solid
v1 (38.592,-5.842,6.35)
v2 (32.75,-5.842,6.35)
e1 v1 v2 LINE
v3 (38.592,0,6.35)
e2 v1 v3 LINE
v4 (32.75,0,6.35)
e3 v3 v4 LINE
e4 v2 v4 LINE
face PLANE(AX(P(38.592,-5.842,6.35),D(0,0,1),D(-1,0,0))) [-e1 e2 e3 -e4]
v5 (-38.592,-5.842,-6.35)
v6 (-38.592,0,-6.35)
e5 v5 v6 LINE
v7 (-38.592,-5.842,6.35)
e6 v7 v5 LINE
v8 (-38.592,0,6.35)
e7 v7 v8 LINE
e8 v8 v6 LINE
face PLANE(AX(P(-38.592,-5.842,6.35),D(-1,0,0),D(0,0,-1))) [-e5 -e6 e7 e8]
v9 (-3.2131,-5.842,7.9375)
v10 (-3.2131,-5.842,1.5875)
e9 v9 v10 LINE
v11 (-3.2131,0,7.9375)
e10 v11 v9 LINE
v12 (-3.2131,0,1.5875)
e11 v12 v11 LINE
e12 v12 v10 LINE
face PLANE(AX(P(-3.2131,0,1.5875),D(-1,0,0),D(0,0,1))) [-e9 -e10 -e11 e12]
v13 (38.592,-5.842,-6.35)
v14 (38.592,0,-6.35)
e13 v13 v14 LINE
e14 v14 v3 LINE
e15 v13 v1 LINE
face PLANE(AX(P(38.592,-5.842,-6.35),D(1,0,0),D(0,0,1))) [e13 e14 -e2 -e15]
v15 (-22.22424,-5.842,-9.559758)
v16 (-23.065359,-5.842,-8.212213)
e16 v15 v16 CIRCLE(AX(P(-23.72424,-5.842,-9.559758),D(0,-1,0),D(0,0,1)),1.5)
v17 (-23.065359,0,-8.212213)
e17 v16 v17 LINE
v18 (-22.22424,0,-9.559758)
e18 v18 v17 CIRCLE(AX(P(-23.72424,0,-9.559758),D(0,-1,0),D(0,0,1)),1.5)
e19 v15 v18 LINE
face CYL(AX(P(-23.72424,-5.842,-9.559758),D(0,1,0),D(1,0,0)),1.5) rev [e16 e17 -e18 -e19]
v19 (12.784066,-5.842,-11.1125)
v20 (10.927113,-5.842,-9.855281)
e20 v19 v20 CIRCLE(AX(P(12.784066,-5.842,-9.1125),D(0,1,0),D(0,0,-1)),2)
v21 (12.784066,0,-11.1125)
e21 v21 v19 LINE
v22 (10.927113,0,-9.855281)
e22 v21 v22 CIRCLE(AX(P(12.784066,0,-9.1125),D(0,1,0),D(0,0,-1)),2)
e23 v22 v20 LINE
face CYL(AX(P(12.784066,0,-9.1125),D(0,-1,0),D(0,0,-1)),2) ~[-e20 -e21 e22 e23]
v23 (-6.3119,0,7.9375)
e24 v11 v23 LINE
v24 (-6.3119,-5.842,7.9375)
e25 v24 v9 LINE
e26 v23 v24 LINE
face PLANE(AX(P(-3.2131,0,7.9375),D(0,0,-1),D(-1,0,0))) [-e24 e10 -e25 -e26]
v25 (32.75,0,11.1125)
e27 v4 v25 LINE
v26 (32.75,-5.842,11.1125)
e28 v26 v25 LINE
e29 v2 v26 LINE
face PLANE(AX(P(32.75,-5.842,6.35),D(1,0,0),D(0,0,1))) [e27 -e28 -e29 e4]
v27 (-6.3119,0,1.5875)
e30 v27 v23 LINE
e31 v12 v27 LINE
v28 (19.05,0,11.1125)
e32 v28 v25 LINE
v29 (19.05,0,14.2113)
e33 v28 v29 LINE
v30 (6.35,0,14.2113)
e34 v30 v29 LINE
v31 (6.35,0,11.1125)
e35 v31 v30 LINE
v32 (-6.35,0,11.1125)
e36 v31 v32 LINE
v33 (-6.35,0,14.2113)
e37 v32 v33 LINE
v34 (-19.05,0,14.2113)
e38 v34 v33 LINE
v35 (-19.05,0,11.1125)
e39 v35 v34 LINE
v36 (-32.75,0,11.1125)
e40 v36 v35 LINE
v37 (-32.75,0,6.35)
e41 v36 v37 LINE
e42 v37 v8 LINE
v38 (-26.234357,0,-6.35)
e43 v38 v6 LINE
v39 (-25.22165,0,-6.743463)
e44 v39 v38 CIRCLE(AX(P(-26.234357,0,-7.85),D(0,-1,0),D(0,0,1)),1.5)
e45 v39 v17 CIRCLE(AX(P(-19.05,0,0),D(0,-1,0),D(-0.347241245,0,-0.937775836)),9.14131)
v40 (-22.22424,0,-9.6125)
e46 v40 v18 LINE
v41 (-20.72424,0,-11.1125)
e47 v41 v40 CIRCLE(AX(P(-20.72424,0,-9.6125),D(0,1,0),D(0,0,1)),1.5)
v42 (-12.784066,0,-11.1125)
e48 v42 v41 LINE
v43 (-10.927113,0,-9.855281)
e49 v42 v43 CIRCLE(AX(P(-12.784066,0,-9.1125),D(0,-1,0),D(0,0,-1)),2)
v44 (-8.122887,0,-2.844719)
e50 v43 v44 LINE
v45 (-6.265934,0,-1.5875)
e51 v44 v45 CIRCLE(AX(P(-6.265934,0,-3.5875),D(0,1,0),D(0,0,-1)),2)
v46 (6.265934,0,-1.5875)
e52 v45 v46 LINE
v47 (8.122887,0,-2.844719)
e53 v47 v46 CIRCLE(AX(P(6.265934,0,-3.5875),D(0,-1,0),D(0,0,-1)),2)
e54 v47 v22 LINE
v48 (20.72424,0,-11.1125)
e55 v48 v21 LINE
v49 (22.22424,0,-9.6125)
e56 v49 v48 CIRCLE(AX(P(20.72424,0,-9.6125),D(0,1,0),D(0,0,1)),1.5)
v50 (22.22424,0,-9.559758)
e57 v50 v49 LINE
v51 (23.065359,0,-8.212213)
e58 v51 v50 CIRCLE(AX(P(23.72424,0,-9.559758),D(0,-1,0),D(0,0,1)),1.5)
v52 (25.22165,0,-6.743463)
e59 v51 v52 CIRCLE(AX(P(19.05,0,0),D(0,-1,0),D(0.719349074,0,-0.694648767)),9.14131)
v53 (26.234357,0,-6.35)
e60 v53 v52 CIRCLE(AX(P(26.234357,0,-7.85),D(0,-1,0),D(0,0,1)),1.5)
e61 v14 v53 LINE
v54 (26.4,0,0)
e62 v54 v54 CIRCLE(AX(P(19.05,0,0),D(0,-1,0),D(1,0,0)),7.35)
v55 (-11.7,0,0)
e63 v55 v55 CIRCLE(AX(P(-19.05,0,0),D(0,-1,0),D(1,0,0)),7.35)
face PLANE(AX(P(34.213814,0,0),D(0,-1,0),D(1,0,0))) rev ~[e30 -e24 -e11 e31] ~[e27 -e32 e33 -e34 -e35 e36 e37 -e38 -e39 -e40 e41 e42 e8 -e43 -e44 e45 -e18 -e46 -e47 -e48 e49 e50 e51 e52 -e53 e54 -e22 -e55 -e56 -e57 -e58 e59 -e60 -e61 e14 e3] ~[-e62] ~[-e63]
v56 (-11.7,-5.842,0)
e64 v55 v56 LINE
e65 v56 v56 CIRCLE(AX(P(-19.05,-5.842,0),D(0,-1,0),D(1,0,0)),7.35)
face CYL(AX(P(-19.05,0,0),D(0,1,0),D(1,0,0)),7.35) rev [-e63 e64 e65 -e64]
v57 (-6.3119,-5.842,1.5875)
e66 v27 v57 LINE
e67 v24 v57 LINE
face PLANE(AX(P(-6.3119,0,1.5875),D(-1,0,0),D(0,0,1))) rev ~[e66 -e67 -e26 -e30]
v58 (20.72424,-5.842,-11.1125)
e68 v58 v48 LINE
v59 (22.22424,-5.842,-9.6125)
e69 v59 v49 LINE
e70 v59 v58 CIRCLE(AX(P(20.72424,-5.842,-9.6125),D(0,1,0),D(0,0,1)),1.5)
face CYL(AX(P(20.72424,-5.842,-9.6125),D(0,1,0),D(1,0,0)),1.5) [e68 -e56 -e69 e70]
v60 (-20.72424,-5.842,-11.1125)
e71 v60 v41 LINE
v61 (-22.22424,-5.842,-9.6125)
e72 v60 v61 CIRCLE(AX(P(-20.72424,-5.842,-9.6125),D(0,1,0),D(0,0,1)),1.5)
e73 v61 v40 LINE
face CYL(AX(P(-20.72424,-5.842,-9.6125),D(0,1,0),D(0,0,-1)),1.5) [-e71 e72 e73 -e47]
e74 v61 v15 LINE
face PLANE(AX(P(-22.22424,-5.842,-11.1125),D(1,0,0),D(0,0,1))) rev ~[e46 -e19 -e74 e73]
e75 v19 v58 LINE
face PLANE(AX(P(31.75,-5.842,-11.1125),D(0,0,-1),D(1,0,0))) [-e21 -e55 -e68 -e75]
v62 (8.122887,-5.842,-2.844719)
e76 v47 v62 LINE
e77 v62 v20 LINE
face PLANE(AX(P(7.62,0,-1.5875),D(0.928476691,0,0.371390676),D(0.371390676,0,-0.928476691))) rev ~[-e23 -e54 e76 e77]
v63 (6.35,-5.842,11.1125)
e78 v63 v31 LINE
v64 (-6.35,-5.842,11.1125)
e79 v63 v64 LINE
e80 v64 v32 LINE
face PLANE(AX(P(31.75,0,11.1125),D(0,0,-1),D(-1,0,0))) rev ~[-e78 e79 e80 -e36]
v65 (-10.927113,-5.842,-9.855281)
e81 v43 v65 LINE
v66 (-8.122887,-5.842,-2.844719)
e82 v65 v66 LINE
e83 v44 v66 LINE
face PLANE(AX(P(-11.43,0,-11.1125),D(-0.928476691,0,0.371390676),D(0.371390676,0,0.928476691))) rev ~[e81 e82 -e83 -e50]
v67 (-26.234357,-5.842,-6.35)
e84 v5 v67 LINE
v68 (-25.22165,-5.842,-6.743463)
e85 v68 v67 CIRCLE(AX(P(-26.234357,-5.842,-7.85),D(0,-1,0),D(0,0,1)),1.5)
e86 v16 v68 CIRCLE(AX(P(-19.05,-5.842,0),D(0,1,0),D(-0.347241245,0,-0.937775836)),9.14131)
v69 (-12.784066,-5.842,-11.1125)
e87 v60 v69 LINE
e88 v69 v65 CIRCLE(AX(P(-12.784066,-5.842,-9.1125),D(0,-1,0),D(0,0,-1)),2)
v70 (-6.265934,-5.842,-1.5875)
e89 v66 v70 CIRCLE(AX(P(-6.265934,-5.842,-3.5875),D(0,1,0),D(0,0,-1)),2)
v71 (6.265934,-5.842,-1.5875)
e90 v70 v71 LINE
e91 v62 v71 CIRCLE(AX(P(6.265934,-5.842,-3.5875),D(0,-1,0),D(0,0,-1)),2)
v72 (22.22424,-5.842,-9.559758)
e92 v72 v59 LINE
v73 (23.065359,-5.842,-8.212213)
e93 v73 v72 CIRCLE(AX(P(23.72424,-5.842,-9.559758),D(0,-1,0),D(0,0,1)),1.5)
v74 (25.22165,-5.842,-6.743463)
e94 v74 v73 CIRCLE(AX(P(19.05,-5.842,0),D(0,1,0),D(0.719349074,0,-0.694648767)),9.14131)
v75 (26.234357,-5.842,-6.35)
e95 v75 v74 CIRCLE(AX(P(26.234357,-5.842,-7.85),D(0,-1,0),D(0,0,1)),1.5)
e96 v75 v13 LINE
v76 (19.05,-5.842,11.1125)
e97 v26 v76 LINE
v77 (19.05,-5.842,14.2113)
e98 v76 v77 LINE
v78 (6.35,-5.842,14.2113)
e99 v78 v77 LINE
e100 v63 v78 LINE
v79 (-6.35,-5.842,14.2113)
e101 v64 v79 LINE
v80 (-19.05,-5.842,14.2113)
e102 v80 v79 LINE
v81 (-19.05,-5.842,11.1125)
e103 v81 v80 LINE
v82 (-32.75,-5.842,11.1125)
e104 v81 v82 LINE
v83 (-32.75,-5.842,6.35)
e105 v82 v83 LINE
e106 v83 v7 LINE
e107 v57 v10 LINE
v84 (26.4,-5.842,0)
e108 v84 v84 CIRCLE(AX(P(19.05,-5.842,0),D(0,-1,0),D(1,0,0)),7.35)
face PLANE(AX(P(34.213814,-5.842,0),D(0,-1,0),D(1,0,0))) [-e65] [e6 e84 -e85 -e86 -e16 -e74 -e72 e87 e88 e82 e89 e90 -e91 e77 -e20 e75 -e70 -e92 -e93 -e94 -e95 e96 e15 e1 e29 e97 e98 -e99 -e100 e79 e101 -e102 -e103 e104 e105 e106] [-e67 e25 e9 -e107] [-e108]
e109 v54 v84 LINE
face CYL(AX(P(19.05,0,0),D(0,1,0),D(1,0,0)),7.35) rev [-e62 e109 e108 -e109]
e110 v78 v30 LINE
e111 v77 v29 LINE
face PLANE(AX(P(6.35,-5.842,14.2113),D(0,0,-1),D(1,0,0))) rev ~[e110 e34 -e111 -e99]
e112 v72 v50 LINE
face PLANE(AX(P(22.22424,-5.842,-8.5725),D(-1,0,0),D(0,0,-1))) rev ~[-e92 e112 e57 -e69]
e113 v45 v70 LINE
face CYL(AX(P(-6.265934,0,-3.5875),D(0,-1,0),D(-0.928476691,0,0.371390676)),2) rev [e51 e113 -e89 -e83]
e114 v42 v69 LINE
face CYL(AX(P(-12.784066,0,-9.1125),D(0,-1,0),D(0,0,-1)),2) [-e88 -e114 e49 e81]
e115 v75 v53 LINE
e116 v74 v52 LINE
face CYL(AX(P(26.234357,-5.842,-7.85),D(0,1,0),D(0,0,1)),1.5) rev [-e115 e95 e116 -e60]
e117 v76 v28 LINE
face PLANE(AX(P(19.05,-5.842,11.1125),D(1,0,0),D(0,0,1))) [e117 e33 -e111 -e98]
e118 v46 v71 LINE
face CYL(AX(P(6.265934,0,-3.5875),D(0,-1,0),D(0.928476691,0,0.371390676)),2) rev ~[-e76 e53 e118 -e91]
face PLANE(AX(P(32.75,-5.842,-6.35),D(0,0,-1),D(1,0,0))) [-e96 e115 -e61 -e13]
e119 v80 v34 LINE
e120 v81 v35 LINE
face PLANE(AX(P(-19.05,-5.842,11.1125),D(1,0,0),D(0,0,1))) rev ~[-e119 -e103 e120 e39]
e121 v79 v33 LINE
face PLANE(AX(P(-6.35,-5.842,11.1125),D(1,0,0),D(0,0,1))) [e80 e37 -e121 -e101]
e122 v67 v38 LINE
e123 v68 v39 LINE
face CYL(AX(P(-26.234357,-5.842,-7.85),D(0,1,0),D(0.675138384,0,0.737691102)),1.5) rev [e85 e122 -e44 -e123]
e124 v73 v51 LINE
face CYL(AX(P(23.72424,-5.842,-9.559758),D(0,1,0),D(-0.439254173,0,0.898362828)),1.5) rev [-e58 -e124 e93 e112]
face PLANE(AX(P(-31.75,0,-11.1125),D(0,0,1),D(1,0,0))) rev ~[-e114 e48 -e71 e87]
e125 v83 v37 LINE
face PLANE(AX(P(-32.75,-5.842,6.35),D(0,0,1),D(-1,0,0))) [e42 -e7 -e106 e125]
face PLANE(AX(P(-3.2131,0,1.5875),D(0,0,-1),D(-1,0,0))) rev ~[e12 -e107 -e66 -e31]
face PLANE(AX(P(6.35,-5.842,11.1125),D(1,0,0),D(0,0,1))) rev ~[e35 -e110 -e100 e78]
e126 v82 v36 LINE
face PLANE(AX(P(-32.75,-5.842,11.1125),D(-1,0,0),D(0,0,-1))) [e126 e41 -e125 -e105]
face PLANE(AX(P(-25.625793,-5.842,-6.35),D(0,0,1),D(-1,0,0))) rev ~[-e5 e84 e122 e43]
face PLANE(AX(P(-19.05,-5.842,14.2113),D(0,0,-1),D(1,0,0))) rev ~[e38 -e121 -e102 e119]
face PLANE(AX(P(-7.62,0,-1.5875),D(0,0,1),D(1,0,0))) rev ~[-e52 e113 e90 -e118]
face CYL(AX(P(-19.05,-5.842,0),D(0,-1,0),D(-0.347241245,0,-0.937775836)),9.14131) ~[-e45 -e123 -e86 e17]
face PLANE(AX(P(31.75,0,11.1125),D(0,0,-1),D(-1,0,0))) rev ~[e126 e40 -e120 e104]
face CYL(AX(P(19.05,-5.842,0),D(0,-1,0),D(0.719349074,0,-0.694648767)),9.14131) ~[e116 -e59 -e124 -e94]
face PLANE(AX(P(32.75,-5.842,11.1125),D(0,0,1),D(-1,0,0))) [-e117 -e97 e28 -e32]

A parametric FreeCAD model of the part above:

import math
import FreeCAD as App
import Part
import Sketcher
from FreeCAD import Vector
Q = App.Units.Quantity


def edges_at(feature, points):
    """Names of the edges that pass closest to the given points."""
    edges = feature.Shape.Edges
    near = lambda p: min(range(len(edges)), key=lambda i: edges[i].distToShape(Part.Vertex(*p))[0])
    return sorted({f"Edge{near(p) + 1}" for p in points})


def add_polygon(sketch, points):
    """Adds a closed chain of lines whose ends are joined by coincident constraints."""
    first, n = sketch.GeometryCount, len(points)
    for a, b in zip(points, points[1:] + points[:1]):
        sketch.addGeometry(Part.LineSegment(App.Vector(*a, 0), App.Vector(*b, 0)), False)
    for i in range(n):
        sketch.addConstraint(Sketcher.Constraint("Coincident", first + i, 2, first + (i + 1) % n, 1))

doc = App.newDocument("Part")
params = doc.addObject("Spreadsheet::Sheet", "Params")
for row, (alias, value) in enumerate([
    ("sketch1_width", "2.5 in"),
    ("sketch1_width2", "0.8 in"),
    ("sketch1_width3", "0.6 in"),
    ("sketch1_height", "0.875 in"),
    ("pad1_length", "0.23 in"),
    ("fillet_radius", "2 mm"),
    ("sketch2_height", "0.25 in"),
    ("sketch2_width", "0.122 in"),
    ("pocket1_length", "1 in"),
    ("sketch3_width", "0.5 in"),
    ("sketch3_height", "0.122 in"),
    ("pad2_length", "0.23 in"),
    ("sketch4_height", "0.5 in"),
    ("sketch4_width", "0.23 in"),
    ("sketch4_height2", "0.1875 in"),
    ("sketch5_height", "0.1 in"),
    ("sketch5_height2", "0.1875 in"),
    ("pocket2_length", "1 in"),
    ("fillet2_radius", "1.5 mm"),
], start=1):
    params.set(f"A{row}", alias)
    params.set(f"B{row}", "=" + value)
    params.setAlias(f"B{row}", alias)

body = doc.addObject("PartDesign::Body", "Body")

# Sketch on XZ plane
sketch1 = body.newObject("Sketcher::SketchObject", "Sketch")
sketch1.AttachmentSupport = (doc.getObject("XZ_Plane"), [""])
sketch1.MapMode = "FlatFace"
add_polygon(sketch1, [(32, 11), (-32, 11), (-32, -11), (-11, -11), (-8, -2), (8, -2), (11, -11), (32, -11)])  # lines 0-7
sketch1.addGeometry(Part.Circle(Vector(-19, 0, 0), Vector(0, 0, 1), 7), False)  # 8
sketch1.addGeometry(Part.Circle(Vector(19, 0, 0), Vector(0, 0, 1), 7), False)  # 9
sketch1.addConstraint([
    Sketcher.Constraint("Horizontal", 0),
    Sketcher.Constraint("Vertical", 1),
    Sketcher.Constraint("Horizontal", 2),
    Sketcher.Constraint("Horizontal", 4),
    Sketcher.Constraint("Horizontal", 6),
    Sketcher.Constraint("Vertical", 7),
    Sketcher.Constraint("Equal", 8, 9),
    Sketcher.Constraint("Symmetric", 8, 3, 9, 3, -1, 1),
    Sketcher.Constraint("Symmetric", 0, 2, 6, 2, -1, 1),
    Sketcher.Constraint("Symmetric", 2, 2, 5, 2, -2),
    Sketcher.Constraint("PointOnObject", 8, 3, -1),
    Sketcher.Constraint("Equal", 3, 5),
    Sketcher.Constraint("DistanceX", 0, 2, 0, 1, Q("2.5 in")),
    Sketcher.Constraint("DistanceX", 2, 1, 2, 2, Q("0.8 in")),
    Sketcher.Constraint("DistanceX", 4, 1, 4, 2, Q("0.6 in")),
    Sketcher.Constraint("DistanceX", 0, 2, 9, 3, Q("2 in")),
    Sketcher.Constraint("DistanceY", 3, 2, 0, 2, Q("0.5 in")),
    Sketcher.Constraint("Diameter", 8, 14.7),
    Sketcher.Constraint("DistanceY", 1, 2, 1, 1, Q("0.875 in")),
])
sketch1.setExpression("Constraints[20]", "Params.sketch1_width")
sketch1.setExpression("Constraints[21]", "Params.sketch1_width2")
sketch1.setExpression("Constraints[22]", "Params.sketch1_width3")
sketch1.setExpression("Constraints[26]", "Params.sketch1_height")
pad1 = body.newObject("PartDesign::Pad", "Pad")
pad1.Profile = sketch1
pad1.setExpression("Length", "Params.pad1_length")
doc.recompute()

fillet = body.newObject("PartDesign::Fillet", "Fillet")
fillet.Base = (pad1, edges_at(pad1, [
    (-11.43, -2.921, -11.113),
    (-7.62, -2.921, -1.587),
    (7.62, -2.921, -1.587),
    (11.43, -2.921, -11.113),
]))
fillet.setExpression("Radius", "Params.fillet_radius")

# Sketch on XZ plane
sketch2 = body.newObject("Sketcher::SketchObject", "Sketch001")
sketch2.AttachmentSupport = (doc.getObject("XZ_Plane"), [""])
sketch2.MapMode = "FlatFace"
add_polygon(sketch2, [(-3.2, 7.9), (-3.2, 1.6), (-6.3, 1.6), (-6.3, 7.9)])  # lines 0-3
sketch2.addConstraint([
    Sketcher.Constraint("Vertical", 0),
    Sketcher.Constraint("Horizontal", 1),
    Sketcher.Constraint("Vertical", 2),
    Sketcher.Constraint("Horizontal", 3),
    Sketcher.Constraint("DistanceY", 0, 2, 0, 1, Q("0.25 in")),
    Sketcher.Constraint("DistanceX", 1, 2, 1, 1, Q("0.122 in")),
    Sketcher.Constraint("DistanceY", -1, 1, 0, 2, Q("0.0625 in")),
    Sketcher.Constraint("DistanceX", 0, 2, -1, 1, Q("0.1265 in")),
])
sketch2.setExpression("Constraints[8]", "Params.sketch2_height")
sketch2.setExpression("Constraints[9]", "Params.sketch2_width")
pocket1 = body.newObject("PartDesign::Pocket", "Pocket")
pocket1.Profile = sketch2
pocket1.setExpression("Length", "Params.pocket1_length")
pocket1.Reversed = True

# Sketch on XZ plane
sketch3 = body.newObject("Sketcher::SketchObject", "Sketch002")
sketch3.AttachmentSupport = (doc.getObject("XZ_Plane"), [""])
sketch3.MapMode = "FlatFace"
sketch3.AttachmentOffset = App.Placement(Vector(0, 0, 0.23 * 25.4), App.Rotation())
add_polygon(sketch3, [(-19.1, 14.2), (-19.1, 11.1), (-6.3, 11.1), (-6.3, 14.2)])  # lines 0-3
add_polygon(sketch3, [(6.3, 14.2), (6.3, 11.1), (19.1, 11.1), (19.1, 14.2)])  # lines 4-7
sketch3.addConstraint([
    Sketcher.Constraint("Vertical", 0),
    Sketcher.Constraint("Horizontal", 1),
    Sketcher.Constraint("Vertical", 2),
    Sketcher.Constraint("Horizontal", 3),
    Sketcher.Constraint("Vertical", 4),
    Sketcher.Constraint("Horizontal", 5),
    Sketcher.Constraint("Vertical", 6),
    Sketcher.Constraint("Horizontal", 7),
    Sketcher.Constraint("Symmetric", 1, 2, 4, 2, -2),
    Sketcher.Constraint("Symmetric", 3, 2, 6, 2, -2),
    Sketcher.Constraint("DistanceX", 1, 1, 1, 2, Q("0.5 in")),
    Sketcher.Constraint("DistanceX", 0, 2, 4, 2, Q("1 in")),
    Sketcher.Constraint("DistanceY", 0, 2, 0, 1, Q("0.122 in")),
    Sketcher.Constraint("DistanceY", -1, 1, 0, 2, Q("0.4375 in")),
])
sketch3.setExpression("Constraints[18]", "Params.sketch3_width")
sketch3.setExpression("Constraints[20]", "Params.sketch3_height")
pad2 = body.newObject("PartDesign::Pad", "Pad001")
pad2.Profile = sketch3
pad2.setExpression("Length", "Params.pad2_length")
pad2.Reversed = True

# Sketch on XZ plane
sketch4 = body.newObject("Sketcher::SketchObject", "Sketch003")
sketch4.AttachmentSupport = (doc.getObject("XZ_Plane"), [""])
sketch4.MapMode = "FlatFace"
sketch4.AttachmentOffset = App.Placement(Vector(0, 0, 0.23 * 25.4), App.Rotation())
add_polygon(sketch4, [(38.6, 6.3), (32.8, 6.3), (32.8, 11.1), (31.8, 11.1), (31.8, -11.1), (32.8, -11.1), (32.8, -6.3), (38.6, -6.3)])  # lines 0-7
add_polygon(sketch4, [(-31.8, 11.1), (-32.8, 11.1), (-32.8, 6.3), (-38.6, 6.3), (-38.6, -6.3), (-32.8, -6.3), (-32.8, -11.1), (-31.8, -11.1)])  # lines 8-15
sketch4.addConstraint([
    Sketcher.Constraint("Horizontal", 0),
    Sketcher.Constraint("Vertical", 1),
    Sketcher.Constraint("Horizontal", 2),
    Sketcher.Constraint("Vertical", 3),
    Sketcher.Constraint("Horizontal", 4),
    Sketcher.Constraint("Vertical", 5),
    Sketcher.Constraint("Horizontal", 6),
    Sketcher.Constraint("Vertical", 7),
    Sketcher.Constraint("Horizontal", 8),
    Sketcher.Constraint("Vertical", 9),
    Sketcher.Constraint("Horizontal", 10),
    Sketcher.Constraint("Vertical", 11),
    Sketcher.Constraint("Horizontal", 12),
    Sketcher.Constraint("Vertical", 13),
    Sketcher.Constraint("Horizontal", 14),
    Sketcher.Constraint("Vertical", 15),
    Sketcher.Constraint("Symmetric", 4, 2, 8, 2, -1, 1),
    Sketcher.Constraint("Symmetric", 6, 2, 10, 2, -1, 1),
    Sketcher.Constraint("Symmetric", 0, 2, 12, 2, -1, 1),
    Sketcher.Constraint("Symmetric", 2, 2, 14, 2, -1, 1),
    Sketcher.Constraint("Symmetric", 1, 2, 8, 2, -2),
    Sketcher.Constraint("Horizontal", 7, 2, 9, 2),
    Sketcher.Constraint("DistanceY", 7, 1, 7, 2, Q("0.5 in")),
    Sketcher.Constraint("DistanceX", 0, 2, 0, 1, Q("0.23 in")),
    Sketcher.Constraint("DistanceY", 1, 1, 1, 2, Q("0.1875 in")),
    Sketcher.Constraint("DistanceX", -1, 1, 2, 2, Q("1.25 in")),
    Sketcher.Constraint("DistanceX", 2, 2, 2, 1, 1.0),
])
sketch4.setExpression("Constraints[38]", "Params.sketch4_height")
sketch4.setExpression("Constraints[39]", "Params.sketch4_width")
sketch4.setExpression("Constraints[40]", "Params.sketch4_height2")
pad3 = body.newObject("PartDesign::Pad", "Pad002")
pad3.Profile = sketch4
pad3.Type = "UpToLast"
pad3.Reversed = True

# Sketch on XZ plane
sketch5 = body.newObject("Sketcher::SketchObject", "Sketch004")
sketch5.AttachmentSupport = (doc.getObject("XZ_Plane"), [""])
sketch5.MapMode = "FlatFace"
sketch5.AttachmentOffset = App.Placement(Vector(0, 0, 0.23 * 25.4), App.Rotation())
sketch5.addGeometry([
    Part.LineSegment(Vector(-22.2, -11.1, 0), Vector(-22.2, -8.6, 0)),  # 0
    Part.ArcOfCircle(Part.Circle(Vector(-19.1, 0, 0), Vector(0, 0, 1), 9.1), math.radians(-136), math.radians(-110)),  # 1
    Part.LineSegment(Vector(-25.6, -6.3, 0), Vector(-32.8, -6.3, 0)),  # 2
    Part.LineSegment(Vector(-32.8, -6.3, 0), Vector(-32.8, -11.1, 0)),  # 3
    Part.LineSegment(Vector(-32.8, -11.1, 0), Vector(-22.2, -11.1, 0)),  # 4
    Part.LineSegment(Vector(32.8, -6.3, 0), Vector(25.6, -6.3, 0)),  # 5
    Part.ArcOfCircle(Part.Circle(Vector(19.1, 0, 0), Vector(0, 0, 1), 9.1), math.radians(-70), math.radians(-44)),  # 6
    Part.LineSegment(Vector(22.2, -8.6, 0), Vector(22.2, -11.1, 0)),  # 7
    Part.LineSegment(Vector(22.2, -11.1, 0), Vector(32.8, -11.1, 0)),  # 8
    Part.LineSegment(Vector(32.8, -11.1, 0), Vector(32.8, -6.3, 0)),  # 9
], False)
sketch5.addConstraint([
    Sketcher.Constraint("Coincident", 0, 2, 1, 2),
    Sketcher.Constraint("Coincident", 1, 1, 2, 1),
    Sketcher.Constraint("Coincident", 2, 2, 3, 1),
    Sketcher.Constraint("Coincident", 3, 2, 4, 1),
    Sketcher.Constraint("Coincident", 4, 2, 0, 1),
    Sketcher.Constraint("Coincident", 5, 2, 6, 2),
    Sketcher.Constraint("Coincident", 6, 1, 7, 1),
    Sketcher.Constraint("Coincident", 7, 2, 8, 1),
    Sketcher.Constraint("Coincident", 8, 2, 9, 1),
    Sketcher.Constraint("Coincident", 9, 2, 5, 1),
    Sketcher.Constraint("Vertical", 0),
    Sketcher.Constraint("Horizontal", 2),
    Sketcher.Constraint("Vertical", 3),
    Sketcher.Constraint("Horizontal", 4),
    Sketcher.Constraint("Horizontal", 5),
    Sketcher.Constraint("Vertical", 7),
    Sketcher.Constraint("Horizontal", 8),
    Sketcher.Constraint("Vertical", 9),
    Sketcher.Constraint("Equal", 1, 6),
    Sketcher.Constraint("Symmetric", 1, 3, 6, 3, -1, 1),
    Sketcher.Constraint("Symmetric", 1, 1, 5, 2, -2),
    Sketcher.Constraint("Symmetric", 4, 2, 7, 2, -2),
    Sketcher.Constraint("Equal", 2, 5),
    Sketcher.Constraint("DistanceY", 0, 1, 0, 2, Q("0.1 in")),
    Sketcher.Constraint("DistanceX", 1, 3, 6, 3, Q("1.5 in")),
    Sketcher.Constraint("DistanceY", 3, 2, 3, 1, Q("0.1875 in")),
    Sketcher.Constraint("DistanceY", 1, 1, -1, 1, Q("0.25 in")),
    Sketcher.Constraint("DistanceX", 4, 1, 4, 2, Q("0.4144 in")),
    Sketcher.Constraint("Radius", 1, 9.14131),
])
sketch5.setExpression("Constraints[23]", "Params.sketch5_height")
sketch5.setExpression("Constraints[25]", "Params.sketch5_height2")
pocket2 = body.newObject("PartDesign::Pocket", "Pocket001")
pocket2.Profile = sketch5
pocket2.setExpression("Length", "Params.pocket2_length")
doc.recompute()

fillet2 = body.newObject("PartDesign::Fillet", "Fillet001")
fillet2.Base = (pocket2, edges_at(pocket2, [
    (25.626, -2.921, -6.35),
    (22.224, -2.921, -11.113),
    (22.224, -2.921, -8.572),
    (-25.626, -2.921, -6.35),
    (-22.224, -2.921, -8.572),
    (-22.224, -2.921, -11.113),
]))
fillet2.setExpression("Radius", "Params.fillet2_radius")

doc.recompute()
